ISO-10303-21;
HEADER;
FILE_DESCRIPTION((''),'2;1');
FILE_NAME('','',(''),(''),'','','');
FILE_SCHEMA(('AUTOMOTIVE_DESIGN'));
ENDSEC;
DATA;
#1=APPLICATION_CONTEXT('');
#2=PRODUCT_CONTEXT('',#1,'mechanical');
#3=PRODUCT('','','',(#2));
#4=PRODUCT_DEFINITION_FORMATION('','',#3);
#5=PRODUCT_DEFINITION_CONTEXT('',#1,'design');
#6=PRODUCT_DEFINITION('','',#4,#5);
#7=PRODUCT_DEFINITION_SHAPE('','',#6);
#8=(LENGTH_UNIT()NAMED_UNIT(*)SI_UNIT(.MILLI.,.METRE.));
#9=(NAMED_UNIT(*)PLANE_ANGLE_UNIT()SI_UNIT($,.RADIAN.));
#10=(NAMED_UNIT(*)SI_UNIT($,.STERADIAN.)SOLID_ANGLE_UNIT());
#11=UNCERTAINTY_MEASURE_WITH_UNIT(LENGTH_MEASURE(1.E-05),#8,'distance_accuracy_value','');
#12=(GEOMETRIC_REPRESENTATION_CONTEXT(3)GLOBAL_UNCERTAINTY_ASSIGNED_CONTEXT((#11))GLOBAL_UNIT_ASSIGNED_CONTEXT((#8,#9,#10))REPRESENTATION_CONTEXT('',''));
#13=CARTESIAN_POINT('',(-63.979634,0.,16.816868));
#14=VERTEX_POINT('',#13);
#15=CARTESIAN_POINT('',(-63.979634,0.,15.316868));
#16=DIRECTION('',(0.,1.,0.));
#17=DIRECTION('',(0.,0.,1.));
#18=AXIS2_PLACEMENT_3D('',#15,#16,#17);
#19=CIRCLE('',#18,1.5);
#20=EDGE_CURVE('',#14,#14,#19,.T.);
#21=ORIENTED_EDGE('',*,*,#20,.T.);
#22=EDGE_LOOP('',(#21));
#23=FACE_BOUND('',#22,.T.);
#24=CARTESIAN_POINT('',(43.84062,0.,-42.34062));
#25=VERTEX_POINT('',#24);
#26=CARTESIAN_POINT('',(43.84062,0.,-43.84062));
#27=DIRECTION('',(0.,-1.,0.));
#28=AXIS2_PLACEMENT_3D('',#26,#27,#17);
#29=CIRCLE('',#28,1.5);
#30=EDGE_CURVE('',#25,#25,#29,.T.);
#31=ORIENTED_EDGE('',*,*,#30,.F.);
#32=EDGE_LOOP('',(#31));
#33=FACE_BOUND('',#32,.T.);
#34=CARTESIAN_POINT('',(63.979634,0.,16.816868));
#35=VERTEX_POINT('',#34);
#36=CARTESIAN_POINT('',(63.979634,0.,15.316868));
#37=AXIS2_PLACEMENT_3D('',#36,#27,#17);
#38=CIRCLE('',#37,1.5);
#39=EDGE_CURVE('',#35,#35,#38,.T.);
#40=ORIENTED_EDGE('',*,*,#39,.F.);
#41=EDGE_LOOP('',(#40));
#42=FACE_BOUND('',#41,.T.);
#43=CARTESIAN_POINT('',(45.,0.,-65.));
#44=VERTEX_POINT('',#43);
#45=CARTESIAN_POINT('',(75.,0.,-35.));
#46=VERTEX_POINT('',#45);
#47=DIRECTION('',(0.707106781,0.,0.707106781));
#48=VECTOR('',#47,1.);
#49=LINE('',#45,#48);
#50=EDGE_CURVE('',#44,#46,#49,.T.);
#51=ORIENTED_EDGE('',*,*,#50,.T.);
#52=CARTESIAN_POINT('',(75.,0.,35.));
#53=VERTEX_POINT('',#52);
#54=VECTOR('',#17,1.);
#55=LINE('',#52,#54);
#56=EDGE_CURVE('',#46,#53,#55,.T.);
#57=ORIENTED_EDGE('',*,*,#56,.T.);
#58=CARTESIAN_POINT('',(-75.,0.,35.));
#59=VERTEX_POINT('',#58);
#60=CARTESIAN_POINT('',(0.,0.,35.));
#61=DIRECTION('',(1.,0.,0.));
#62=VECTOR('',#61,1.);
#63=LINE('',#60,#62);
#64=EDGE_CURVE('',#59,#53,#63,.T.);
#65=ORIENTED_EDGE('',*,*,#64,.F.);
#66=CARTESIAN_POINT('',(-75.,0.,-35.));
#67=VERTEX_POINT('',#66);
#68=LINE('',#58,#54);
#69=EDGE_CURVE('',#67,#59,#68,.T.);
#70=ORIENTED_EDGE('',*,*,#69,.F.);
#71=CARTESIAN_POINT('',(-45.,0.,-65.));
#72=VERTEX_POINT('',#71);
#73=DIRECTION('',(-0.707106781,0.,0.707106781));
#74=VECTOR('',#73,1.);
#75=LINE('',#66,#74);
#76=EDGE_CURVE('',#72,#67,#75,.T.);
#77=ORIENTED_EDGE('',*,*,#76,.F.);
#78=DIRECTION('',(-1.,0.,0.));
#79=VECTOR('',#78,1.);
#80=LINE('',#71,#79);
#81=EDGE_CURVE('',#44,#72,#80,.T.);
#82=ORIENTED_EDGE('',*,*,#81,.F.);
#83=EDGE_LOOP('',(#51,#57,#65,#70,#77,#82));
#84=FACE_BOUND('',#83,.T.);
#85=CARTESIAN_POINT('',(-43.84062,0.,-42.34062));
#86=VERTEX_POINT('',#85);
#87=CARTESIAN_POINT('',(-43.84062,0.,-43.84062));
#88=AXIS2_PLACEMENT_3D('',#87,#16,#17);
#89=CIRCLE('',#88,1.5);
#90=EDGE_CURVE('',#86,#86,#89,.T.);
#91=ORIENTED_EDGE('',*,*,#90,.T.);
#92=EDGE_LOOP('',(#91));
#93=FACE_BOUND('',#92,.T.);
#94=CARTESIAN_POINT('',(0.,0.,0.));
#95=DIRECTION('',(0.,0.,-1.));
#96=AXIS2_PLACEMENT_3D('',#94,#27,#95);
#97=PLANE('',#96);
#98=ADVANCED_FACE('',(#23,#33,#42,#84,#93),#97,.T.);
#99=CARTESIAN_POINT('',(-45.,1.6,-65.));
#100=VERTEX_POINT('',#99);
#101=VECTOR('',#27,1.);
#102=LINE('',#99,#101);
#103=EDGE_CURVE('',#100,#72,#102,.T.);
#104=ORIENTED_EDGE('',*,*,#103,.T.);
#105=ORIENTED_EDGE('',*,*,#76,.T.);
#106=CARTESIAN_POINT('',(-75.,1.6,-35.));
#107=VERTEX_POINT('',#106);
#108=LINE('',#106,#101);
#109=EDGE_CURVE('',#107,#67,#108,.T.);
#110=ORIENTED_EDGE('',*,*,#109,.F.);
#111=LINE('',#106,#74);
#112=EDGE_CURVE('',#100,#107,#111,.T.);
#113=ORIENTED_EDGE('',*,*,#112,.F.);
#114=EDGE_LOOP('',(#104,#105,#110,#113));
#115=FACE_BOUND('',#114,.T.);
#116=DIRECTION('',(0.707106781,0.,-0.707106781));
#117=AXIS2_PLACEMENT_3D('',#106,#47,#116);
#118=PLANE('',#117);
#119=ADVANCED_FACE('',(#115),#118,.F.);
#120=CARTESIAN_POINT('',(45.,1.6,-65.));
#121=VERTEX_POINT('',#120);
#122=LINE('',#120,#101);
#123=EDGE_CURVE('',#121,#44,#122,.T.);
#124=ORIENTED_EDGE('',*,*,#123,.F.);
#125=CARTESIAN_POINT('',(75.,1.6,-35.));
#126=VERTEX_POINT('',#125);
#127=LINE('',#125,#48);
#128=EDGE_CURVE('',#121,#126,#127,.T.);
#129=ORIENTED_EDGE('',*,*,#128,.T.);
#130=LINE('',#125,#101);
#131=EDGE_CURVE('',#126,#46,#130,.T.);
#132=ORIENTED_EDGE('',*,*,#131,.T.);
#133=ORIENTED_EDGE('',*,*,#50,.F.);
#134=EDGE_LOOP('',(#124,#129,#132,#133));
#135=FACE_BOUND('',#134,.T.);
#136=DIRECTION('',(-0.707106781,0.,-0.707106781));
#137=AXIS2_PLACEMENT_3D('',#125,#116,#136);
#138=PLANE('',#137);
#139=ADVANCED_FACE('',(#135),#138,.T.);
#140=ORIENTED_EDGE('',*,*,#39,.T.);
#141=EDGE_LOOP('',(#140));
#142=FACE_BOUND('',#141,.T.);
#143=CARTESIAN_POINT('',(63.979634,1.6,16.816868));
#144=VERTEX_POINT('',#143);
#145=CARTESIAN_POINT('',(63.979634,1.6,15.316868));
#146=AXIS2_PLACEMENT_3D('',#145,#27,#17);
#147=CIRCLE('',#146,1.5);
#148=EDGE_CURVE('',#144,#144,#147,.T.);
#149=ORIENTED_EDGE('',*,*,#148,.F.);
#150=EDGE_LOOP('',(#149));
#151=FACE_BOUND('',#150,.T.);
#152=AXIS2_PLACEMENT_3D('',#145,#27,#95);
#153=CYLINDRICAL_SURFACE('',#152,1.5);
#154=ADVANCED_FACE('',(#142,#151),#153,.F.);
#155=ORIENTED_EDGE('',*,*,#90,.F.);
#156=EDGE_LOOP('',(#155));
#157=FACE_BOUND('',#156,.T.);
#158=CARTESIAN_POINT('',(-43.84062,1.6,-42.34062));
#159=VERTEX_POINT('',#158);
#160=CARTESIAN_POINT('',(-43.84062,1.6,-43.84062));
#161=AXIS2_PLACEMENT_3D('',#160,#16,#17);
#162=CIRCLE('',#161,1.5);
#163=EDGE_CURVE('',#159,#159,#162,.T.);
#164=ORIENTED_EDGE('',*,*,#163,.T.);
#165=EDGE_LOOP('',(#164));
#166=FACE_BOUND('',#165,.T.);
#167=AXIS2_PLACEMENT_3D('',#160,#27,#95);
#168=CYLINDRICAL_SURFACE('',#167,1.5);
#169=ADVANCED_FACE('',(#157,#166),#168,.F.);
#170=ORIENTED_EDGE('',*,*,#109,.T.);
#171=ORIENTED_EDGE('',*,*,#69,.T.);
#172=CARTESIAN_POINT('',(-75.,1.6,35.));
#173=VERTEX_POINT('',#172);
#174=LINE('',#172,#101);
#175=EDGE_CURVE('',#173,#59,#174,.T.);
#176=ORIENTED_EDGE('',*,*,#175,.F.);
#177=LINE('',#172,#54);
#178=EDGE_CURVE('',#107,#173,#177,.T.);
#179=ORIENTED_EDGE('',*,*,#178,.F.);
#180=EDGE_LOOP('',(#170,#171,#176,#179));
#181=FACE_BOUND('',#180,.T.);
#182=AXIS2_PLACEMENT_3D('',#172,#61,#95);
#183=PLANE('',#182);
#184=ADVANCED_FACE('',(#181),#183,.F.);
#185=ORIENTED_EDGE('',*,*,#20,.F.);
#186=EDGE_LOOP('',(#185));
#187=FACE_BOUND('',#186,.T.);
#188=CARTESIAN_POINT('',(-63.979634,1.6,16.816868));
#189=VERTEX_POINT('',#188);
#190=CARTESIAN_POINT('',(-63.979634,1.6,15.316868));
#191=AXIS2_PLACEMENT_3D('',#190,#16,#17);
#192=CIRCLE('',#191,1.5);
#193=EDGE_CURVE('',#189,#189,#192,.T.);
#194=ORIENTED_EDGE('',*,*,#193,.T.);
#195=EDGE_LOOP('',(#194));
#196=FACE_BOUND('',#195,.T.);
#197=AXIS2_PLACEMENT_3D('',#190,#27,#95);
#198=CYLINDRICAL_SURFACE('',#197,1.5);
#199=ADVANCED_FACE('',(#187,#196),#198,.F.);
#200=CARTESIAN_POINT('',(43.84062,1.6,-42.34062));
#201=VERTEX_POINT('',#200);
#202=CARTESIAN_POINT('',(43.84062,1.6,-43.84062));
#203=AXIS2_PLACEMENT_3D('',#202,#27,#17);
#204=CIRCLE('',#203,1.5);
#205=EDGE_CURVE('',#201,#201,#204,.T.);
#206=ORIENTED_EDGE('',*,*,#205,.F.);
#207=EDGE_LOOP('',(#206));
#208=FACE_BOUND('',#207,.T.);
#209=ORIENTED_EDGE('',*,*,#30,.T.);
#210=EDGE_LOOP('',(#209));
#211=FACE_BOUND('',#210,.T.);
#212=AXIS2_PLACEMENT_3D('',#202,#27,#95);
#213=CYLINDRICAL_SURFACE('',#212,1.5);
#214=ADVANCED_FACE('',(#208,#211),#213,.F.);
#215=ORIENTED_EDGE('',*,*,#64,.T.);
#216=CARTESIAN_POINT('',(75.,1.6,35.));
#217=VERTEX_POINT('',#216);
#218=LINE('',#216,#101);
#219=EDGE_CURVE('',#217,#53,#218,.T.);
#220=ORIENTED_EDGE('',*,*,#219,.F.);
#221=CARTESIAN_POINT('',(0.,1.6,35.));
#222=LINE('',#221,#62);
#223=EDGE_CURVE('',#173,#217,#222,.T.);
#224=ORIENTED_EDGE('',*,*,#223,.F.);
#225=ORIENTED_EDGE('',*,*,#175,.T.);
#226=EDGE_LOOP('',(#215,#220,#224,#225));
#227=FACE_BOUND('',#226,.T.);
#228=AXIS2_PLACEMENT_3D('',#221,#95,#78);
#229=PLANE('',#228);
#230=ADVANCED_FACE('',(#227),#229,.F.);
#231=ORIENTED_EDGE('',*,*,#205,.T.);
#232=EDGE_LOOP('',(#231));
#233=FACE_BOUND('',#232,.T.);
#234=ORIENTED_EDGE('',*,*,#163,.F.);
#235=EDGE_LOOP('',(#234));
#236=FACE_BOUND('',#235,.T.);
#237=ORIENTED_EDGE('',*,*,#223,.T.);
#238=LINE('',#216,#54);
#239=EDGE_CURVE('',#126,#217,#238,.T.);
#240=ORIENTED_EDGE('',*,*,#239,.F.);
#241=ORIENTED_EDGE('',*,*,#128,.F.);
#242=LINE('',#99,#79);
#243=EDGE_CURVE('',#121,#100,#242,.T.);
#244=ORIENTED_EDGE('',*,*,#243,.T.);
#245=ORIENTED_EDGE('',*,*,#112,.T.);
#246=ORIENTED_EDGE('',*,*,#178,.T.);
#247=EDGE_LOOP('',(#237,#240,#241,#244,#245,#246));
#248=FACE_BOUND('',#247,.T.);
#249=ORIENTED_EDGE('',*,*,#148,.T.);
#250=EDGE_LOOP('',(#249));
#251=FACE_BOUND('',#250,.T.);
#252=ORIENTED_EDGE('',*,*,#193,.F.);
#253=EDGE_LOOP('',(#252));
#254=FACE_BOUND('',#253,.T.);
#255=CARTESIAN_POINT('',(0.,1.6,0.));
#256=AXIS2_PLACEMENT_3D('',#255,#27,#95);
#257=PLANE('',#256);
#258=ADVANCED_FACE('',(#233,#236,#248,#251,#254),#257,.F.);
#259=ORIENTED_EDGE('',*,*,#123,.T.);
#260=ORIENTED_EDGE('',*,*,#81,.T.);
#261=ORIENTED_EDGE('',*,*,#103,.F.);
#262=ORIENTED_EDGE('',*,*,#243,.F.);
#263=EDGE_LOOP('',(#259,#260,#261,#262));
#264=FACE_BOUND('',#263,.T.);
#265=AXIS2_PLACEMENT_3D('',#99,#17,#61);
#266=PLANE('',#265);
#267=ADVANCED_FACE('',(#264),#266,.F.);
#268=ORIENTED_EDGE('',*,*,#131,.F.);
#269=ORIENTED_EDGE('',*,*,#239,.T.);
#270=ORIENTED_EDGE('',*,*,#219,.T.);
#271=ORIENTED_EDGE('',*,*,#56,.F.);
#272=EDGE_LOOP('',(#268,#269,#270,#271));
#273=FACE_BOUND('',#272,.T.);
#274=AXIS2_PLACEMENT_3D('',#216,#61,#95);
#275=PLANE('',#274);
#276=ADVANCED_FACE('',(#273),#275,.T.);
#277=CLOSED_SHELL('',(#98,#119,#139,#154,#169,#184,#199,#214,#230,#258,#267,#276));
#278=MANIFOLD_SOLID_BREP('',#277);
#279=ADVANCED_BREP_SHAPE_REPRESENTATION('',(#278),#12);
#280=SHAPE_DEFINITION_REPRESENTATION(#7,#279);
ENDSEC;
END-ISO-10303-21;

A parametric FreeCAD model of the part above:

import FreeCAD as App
import Part
import Sketcher

doc = App.newDocument("Part")
body = doc.addObject("PartDesign::Body", "Body")

# Sketch on XZ plane
sketch1 = body.newObject("Sketcher::SketchObject", "Sketch")
sketch1.AttachmentSupport = (doc.getObject("XZ_Plane"), [""])
sketch1.MapMode = "FlatFace"
sketch1.addGeometry([
    Part.LineSegment(App.Vector(-75, -35, 0), App.Vector(-75, 35, 0)),  # 0
    Part.LineSegment(App.Vector(-75, 35, 0), App.Vector(0, 35, 0)),  # 1
    Part.LineSegment(App.Vector(0, 35, 0), App.Vector(0, -65, 0)),  # 2
    Part.LineSegment(App.Vector(0, -65, 0), App.Vector(-45, -65, 0)),  # 3
    Part.LineSegment(App.Vector(-45, -65, 0), App.Vector(-75, -35, 0)),  # 4
    Part.Circle(App.Vector(-64, 15.3, 0), App.Vector(0, 0, 1), 1.5),  # 5
    Part.Circle(App.Vector(-43.8, -43.8, 0), App.Vector(0, 0, 1), 1.5),  # 6
], False)
sketch1.addConstraint([
    Sketcher.Constraint("Coincident", 0, 2, 1, 1),
    Sketcher.Constraint("Coincident", 1, 2, 2, 1),
    Sketcher.Constraint("Coincident", 2, 2, 3, 1),
    Sketcher.Constraint("Coincident", 3, 2, 4, 1),
    Sketcher.Constraint("Coincident", 4, 2, 0, 1),
    Sketcher.Constraint("Vertical", 0),
    Sketcher.Constraint("Horizontal", 1),
    Sketcher.Constraint("Vertical", 2),
    Sketcher.Constraint("Horizontal", 3),
    Sketcher.Constraint("Equal", 5, 6),
    Sketcher.Constraint("PointOnObject", 1, 2, -2),
    Sketcher.Constraint("Diameter", 5, 3.0),
    Sketcher.Constraint("DistanceX", 1, 1, 1, 2, 75.0),
    Sketcher.Constraint("DistanceX", 3, 2, 3, 1, 45.0),
    Sketcher.Constraint("DistanceY", 0, 1, 0, 2, 70.0),
    Sketcher.Constraint("DistanceY", 2, 2, 2, 1, 100.0),
    Sketcher.Constraint("DistanceY", -1, 1, 0, 2, 35.0),
    Sketcher.Constraint("DistanceX", 6, 3, -1, 1, 43.84062),
    Sketcher.Constraint("DistanceY", 6, 3, -1, 1, 43.84062),
    Sketcher.Constraint("DistanceY", 6, 3, 5, 3, 59.157488),
    Sketcher.Constraint("DistanceX", 5, 3, -1, 1, 63.979634),
])
pad1 = body.newObject("PartDesign::Pad", "Pad")
pad1.Profile = sketch1
pad1.Length = 1.6
pad1.Reversed = True
doc.recompute()

mirrored = body.newObject("PartDesign::Mirrored", "Mirrored")
mirrored.Originals = [pad1]
mirrored.MirrorPlane = (doc.getObject("YZ_Plane"), [""])
body.Tip = mirrored

doc.recompute()
